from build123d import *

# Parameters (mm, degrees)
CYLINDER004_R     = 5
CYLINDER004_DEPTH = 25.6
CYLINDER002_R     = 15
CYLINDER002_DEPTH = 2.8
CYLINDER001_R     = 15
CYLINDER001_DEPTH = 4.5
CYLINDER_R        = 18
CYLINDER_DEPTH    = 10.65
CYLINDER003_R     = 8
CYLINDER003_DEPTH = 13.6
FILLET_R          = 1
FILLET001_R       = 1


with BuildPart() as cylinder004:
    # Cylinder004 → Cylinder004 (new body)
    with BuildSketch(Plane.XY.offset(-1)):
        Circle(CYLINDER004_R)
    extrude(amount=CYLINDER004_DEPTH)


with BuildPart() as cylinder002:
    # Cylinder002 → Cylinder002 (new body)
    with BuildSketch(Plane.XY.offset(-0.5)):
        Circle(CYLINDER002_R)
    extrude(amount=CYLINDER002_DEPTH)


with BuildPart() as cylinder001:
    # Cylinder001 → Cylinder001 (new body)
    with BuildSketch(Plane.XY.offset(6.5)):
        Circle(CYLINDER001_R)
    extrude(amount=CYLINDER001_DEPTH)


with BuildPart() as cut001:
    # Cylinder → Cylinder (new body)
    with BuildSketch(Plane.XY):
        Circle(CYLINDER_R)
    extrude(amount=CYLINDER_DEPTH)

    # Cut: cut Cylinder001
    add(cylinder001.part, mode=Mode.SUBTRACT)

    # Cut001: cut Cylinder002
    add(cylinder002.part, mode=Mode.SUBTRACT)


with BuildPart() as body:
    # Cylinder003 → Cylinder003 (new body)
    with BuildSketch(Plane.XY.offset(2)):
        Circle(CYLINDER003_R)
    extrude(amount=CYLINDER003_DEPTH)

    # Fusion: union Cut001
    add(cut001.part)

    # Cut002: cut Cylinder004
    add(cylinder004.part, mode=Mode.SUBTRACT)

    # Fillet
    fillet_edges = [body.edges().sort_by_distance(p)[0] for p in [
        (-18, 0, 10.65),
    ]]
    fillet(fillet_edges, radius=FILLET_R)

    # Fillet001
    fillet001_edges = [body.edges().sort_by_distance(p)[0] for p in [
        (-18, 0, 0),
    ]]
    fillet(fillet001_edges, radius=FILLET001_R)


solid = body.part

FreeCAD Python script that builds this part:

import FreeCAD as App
import Part
import Sketcher
Q = App.Units.Quantity


def edges_at(feature, points):
    """Names of the edges that pass closest to the given points."""
    edges = feature.Shape.Edges
    near = lambda p: min(range(len(edges)), key=lambda i: edges[i].distToShape(Part.Vertex(*p))[0])
    return sorted({f"Edge{near(p) + 1}" for p in points})

doc = App.newDocument("Part")
body = doc.addObject("PartDesign::Body", "Body")

# Sketch on XY plane
sketch1 = doc.addObject("Sketcher::SketchObject", "Sketch")
body.addObject(sketch1)
sketch1.AttachmentSupport = (doc.XY_Plane, [""])
sketch1.MapMode = "FlatFace"
sketch1.AttachmentOffset = App.Placement(App.Vector(0, 0, -1), App.Rotation())
sketch1.addGeometry(Part.Circle(App.Vector(0, 0, 0), App.Vector(0, 0, 1), 5), False)
sketch1.addConstraint([
    Sketcher.Constraint("Coincident", 0, 3, -1, 1),
    Sketcher.Constraint("Diameter", 0, Q("10 mm")),
])
pad1 = doc.addObject("PartDesign::Pad", "Pad")
body.addObject(pad1)
pad1.Profile = sketch1
pad1.Length = 25.6
body2 = doc.addObject("PartDesign::Body", "Body001")

# Sketch on XY plane
sketch2 = doc.addObject("Sketcher::SketchObject", "Sketch001")
body2.addObject(sketch2)
sketch2.AttachmentSupport = (doc.getObject("XY_Plane001"), [""])
sketch2.MapMode = "FlatFace"
sketch2.AttachmentOffset = App.Placement(App.Vector(0, 0, -0.5), App.Rotation())
sketch2.addGeometry(Part.Circle(App.Vector(0, 0, 0), App.Vector(0, 0, 1), 15), False)
sketch2.addConstraint([
    Sketcher.Constraint("Coincident", 0, 3, -1, 1),
    Sketcher.Constraint("Diameter", 0, Q("30 mm")),
])
pad2 = doc.addObject("PartDesign::Pad", "Pad001")
body2.addObject(pad2)
pad2.Profile = sketch2
pad2.Length = 2.8
body3 = doc.addObject("PartDesign::Body", "Body002")

# Sketch on XY plane
sketch3 = doc.addObject("Sketcher::SketchObject", "Sketch002")
body3.addObject(sketch3)
sketch3.AttachmentSupport = (doc.getObject("XY_Plane002"), [""])
sketch3.MapMode = "FlatFace"
sketch3.AttachmentOffset = App.Placement(App.Vector(0, 0, 6.5), App.Rotation())
sketch3.addGeometry(Part.Circle(App.Vector(0, 0, 0), App.Vector(0, 0, 1), 15), False)
sketch3.addConstraint([
    Sketcher.Constraint("Coincident", 0, 3, -1, 1),
    Sketcher.Constraint("Diameter", 0, Q("30 mm")),
])
pad3 = doc.addObject("PartDesign::Pad", "Pad002")
body3.addObject(pad3)
pad3.Profile = sketch3
pad3.Length = 4.5
body4 = doc.addObject("PartDesign::Body", "Body003")

# Sketch on XY plane
sketch4 = doc.addObject("Sketcher::SketchObject", "Sketch003")
body4.addObject(sketch4)
sketch4.AttachmentSupport = (doc.getObject("XY_Plane003"), [""])
sketch4.MapMode = "FlatFace"
sketch4.addGeometry(Part.Circle(App.Vector(0, 0, 0), App.Vector(0, 0, 1), 18), False)
sketch4.addConstraint([
    Sketcher.Constraint("Coincident", 0, 3, -1, 1),
    Sketcher.Constraint("Diameter", 0, Q("36 mm")),
])
pad4 = doc.addObject("PartDesign::Pad", "Pad003")
body4.addObject(pad4)
pad4.Profile = sketch4
pad4.Length = 10.65
doc.recompute()

boolean = doc.addObject("PartDesign::Boolean", "Boolean")
body4.addObject(boolean)
boolean.Type = "Cut"
boolean.addObjects([body3])
doc.recompute()

boolean2 = doc.addObject("PartDesign::Boolean", "Boolean001")
body4.addObject(boolean2)
boolean2.Type = "Cut"
boolean2.addObjects([body2])
body5 = doc.addObject("PartDesign::Body", "Body004")

# Sketch on XY plane
sketch5 = doc.addObject("Sketcher::SketchObject", "Sketch004")
body5.addObject(sketch5)
sketch5.AttachmentSupport = (doc.getObject("XY_Plane004"), [""])
sketch5.MapMode = "FlatFace"
sketch5.AttachmentOffset = App.Placement(App.Vector(0, 0, 2), App.Rotation())
sketch5.addGeometry(Part.Circle(App.Vector(0, 0, 0), App.Vector(0, 0, 1), 8), False)
sketch5.addConstraint([
    Sketcher.Constraint("Coincident", 0, 3, -1, 1),
    Sketcher.Constraint("Diameter", 0, Q("16 mm")),
])
pad5 = doc.addObject("PartDesign::Pad", "Pad004")
body5.addObject(pad5)
pad5.Profile = sketch5
pad5.Length = 13.6
doc.recompute()

boolean3 = doc.addObject("PartDesign::Boolean", "Boolean002")
body5.addObject(boolean3)
boolean3.Type = "Fuse"
boolean3.addObjects([body4])
doc.recompute()

boolean4 = doc.addObject("PartDesign::Boolean", "Boolean003")
body5.addObject(boolean4)
boolean4.Type = "Cut"
boolean4.addObjects([body])
doc.recompute()

fillet = doc.addObject("PartDesign::Fillet", "Fillet")
body5.addObject(fillet)
fillet.Base = (boolean4, edges_at(boolean4, [(-18, 0, 10.65)]))
fillet.Radius = 1
doc.recompute()

fillet2 = doc.addObject("PartDesign::Fillet", "Fillet001")
body5.addObject(fillet2)
fillet2.Base = (fillet, edges_at(fillet, [(-18, 0, 0)]))
fillet2.Radius = 1

doc.recompute()
